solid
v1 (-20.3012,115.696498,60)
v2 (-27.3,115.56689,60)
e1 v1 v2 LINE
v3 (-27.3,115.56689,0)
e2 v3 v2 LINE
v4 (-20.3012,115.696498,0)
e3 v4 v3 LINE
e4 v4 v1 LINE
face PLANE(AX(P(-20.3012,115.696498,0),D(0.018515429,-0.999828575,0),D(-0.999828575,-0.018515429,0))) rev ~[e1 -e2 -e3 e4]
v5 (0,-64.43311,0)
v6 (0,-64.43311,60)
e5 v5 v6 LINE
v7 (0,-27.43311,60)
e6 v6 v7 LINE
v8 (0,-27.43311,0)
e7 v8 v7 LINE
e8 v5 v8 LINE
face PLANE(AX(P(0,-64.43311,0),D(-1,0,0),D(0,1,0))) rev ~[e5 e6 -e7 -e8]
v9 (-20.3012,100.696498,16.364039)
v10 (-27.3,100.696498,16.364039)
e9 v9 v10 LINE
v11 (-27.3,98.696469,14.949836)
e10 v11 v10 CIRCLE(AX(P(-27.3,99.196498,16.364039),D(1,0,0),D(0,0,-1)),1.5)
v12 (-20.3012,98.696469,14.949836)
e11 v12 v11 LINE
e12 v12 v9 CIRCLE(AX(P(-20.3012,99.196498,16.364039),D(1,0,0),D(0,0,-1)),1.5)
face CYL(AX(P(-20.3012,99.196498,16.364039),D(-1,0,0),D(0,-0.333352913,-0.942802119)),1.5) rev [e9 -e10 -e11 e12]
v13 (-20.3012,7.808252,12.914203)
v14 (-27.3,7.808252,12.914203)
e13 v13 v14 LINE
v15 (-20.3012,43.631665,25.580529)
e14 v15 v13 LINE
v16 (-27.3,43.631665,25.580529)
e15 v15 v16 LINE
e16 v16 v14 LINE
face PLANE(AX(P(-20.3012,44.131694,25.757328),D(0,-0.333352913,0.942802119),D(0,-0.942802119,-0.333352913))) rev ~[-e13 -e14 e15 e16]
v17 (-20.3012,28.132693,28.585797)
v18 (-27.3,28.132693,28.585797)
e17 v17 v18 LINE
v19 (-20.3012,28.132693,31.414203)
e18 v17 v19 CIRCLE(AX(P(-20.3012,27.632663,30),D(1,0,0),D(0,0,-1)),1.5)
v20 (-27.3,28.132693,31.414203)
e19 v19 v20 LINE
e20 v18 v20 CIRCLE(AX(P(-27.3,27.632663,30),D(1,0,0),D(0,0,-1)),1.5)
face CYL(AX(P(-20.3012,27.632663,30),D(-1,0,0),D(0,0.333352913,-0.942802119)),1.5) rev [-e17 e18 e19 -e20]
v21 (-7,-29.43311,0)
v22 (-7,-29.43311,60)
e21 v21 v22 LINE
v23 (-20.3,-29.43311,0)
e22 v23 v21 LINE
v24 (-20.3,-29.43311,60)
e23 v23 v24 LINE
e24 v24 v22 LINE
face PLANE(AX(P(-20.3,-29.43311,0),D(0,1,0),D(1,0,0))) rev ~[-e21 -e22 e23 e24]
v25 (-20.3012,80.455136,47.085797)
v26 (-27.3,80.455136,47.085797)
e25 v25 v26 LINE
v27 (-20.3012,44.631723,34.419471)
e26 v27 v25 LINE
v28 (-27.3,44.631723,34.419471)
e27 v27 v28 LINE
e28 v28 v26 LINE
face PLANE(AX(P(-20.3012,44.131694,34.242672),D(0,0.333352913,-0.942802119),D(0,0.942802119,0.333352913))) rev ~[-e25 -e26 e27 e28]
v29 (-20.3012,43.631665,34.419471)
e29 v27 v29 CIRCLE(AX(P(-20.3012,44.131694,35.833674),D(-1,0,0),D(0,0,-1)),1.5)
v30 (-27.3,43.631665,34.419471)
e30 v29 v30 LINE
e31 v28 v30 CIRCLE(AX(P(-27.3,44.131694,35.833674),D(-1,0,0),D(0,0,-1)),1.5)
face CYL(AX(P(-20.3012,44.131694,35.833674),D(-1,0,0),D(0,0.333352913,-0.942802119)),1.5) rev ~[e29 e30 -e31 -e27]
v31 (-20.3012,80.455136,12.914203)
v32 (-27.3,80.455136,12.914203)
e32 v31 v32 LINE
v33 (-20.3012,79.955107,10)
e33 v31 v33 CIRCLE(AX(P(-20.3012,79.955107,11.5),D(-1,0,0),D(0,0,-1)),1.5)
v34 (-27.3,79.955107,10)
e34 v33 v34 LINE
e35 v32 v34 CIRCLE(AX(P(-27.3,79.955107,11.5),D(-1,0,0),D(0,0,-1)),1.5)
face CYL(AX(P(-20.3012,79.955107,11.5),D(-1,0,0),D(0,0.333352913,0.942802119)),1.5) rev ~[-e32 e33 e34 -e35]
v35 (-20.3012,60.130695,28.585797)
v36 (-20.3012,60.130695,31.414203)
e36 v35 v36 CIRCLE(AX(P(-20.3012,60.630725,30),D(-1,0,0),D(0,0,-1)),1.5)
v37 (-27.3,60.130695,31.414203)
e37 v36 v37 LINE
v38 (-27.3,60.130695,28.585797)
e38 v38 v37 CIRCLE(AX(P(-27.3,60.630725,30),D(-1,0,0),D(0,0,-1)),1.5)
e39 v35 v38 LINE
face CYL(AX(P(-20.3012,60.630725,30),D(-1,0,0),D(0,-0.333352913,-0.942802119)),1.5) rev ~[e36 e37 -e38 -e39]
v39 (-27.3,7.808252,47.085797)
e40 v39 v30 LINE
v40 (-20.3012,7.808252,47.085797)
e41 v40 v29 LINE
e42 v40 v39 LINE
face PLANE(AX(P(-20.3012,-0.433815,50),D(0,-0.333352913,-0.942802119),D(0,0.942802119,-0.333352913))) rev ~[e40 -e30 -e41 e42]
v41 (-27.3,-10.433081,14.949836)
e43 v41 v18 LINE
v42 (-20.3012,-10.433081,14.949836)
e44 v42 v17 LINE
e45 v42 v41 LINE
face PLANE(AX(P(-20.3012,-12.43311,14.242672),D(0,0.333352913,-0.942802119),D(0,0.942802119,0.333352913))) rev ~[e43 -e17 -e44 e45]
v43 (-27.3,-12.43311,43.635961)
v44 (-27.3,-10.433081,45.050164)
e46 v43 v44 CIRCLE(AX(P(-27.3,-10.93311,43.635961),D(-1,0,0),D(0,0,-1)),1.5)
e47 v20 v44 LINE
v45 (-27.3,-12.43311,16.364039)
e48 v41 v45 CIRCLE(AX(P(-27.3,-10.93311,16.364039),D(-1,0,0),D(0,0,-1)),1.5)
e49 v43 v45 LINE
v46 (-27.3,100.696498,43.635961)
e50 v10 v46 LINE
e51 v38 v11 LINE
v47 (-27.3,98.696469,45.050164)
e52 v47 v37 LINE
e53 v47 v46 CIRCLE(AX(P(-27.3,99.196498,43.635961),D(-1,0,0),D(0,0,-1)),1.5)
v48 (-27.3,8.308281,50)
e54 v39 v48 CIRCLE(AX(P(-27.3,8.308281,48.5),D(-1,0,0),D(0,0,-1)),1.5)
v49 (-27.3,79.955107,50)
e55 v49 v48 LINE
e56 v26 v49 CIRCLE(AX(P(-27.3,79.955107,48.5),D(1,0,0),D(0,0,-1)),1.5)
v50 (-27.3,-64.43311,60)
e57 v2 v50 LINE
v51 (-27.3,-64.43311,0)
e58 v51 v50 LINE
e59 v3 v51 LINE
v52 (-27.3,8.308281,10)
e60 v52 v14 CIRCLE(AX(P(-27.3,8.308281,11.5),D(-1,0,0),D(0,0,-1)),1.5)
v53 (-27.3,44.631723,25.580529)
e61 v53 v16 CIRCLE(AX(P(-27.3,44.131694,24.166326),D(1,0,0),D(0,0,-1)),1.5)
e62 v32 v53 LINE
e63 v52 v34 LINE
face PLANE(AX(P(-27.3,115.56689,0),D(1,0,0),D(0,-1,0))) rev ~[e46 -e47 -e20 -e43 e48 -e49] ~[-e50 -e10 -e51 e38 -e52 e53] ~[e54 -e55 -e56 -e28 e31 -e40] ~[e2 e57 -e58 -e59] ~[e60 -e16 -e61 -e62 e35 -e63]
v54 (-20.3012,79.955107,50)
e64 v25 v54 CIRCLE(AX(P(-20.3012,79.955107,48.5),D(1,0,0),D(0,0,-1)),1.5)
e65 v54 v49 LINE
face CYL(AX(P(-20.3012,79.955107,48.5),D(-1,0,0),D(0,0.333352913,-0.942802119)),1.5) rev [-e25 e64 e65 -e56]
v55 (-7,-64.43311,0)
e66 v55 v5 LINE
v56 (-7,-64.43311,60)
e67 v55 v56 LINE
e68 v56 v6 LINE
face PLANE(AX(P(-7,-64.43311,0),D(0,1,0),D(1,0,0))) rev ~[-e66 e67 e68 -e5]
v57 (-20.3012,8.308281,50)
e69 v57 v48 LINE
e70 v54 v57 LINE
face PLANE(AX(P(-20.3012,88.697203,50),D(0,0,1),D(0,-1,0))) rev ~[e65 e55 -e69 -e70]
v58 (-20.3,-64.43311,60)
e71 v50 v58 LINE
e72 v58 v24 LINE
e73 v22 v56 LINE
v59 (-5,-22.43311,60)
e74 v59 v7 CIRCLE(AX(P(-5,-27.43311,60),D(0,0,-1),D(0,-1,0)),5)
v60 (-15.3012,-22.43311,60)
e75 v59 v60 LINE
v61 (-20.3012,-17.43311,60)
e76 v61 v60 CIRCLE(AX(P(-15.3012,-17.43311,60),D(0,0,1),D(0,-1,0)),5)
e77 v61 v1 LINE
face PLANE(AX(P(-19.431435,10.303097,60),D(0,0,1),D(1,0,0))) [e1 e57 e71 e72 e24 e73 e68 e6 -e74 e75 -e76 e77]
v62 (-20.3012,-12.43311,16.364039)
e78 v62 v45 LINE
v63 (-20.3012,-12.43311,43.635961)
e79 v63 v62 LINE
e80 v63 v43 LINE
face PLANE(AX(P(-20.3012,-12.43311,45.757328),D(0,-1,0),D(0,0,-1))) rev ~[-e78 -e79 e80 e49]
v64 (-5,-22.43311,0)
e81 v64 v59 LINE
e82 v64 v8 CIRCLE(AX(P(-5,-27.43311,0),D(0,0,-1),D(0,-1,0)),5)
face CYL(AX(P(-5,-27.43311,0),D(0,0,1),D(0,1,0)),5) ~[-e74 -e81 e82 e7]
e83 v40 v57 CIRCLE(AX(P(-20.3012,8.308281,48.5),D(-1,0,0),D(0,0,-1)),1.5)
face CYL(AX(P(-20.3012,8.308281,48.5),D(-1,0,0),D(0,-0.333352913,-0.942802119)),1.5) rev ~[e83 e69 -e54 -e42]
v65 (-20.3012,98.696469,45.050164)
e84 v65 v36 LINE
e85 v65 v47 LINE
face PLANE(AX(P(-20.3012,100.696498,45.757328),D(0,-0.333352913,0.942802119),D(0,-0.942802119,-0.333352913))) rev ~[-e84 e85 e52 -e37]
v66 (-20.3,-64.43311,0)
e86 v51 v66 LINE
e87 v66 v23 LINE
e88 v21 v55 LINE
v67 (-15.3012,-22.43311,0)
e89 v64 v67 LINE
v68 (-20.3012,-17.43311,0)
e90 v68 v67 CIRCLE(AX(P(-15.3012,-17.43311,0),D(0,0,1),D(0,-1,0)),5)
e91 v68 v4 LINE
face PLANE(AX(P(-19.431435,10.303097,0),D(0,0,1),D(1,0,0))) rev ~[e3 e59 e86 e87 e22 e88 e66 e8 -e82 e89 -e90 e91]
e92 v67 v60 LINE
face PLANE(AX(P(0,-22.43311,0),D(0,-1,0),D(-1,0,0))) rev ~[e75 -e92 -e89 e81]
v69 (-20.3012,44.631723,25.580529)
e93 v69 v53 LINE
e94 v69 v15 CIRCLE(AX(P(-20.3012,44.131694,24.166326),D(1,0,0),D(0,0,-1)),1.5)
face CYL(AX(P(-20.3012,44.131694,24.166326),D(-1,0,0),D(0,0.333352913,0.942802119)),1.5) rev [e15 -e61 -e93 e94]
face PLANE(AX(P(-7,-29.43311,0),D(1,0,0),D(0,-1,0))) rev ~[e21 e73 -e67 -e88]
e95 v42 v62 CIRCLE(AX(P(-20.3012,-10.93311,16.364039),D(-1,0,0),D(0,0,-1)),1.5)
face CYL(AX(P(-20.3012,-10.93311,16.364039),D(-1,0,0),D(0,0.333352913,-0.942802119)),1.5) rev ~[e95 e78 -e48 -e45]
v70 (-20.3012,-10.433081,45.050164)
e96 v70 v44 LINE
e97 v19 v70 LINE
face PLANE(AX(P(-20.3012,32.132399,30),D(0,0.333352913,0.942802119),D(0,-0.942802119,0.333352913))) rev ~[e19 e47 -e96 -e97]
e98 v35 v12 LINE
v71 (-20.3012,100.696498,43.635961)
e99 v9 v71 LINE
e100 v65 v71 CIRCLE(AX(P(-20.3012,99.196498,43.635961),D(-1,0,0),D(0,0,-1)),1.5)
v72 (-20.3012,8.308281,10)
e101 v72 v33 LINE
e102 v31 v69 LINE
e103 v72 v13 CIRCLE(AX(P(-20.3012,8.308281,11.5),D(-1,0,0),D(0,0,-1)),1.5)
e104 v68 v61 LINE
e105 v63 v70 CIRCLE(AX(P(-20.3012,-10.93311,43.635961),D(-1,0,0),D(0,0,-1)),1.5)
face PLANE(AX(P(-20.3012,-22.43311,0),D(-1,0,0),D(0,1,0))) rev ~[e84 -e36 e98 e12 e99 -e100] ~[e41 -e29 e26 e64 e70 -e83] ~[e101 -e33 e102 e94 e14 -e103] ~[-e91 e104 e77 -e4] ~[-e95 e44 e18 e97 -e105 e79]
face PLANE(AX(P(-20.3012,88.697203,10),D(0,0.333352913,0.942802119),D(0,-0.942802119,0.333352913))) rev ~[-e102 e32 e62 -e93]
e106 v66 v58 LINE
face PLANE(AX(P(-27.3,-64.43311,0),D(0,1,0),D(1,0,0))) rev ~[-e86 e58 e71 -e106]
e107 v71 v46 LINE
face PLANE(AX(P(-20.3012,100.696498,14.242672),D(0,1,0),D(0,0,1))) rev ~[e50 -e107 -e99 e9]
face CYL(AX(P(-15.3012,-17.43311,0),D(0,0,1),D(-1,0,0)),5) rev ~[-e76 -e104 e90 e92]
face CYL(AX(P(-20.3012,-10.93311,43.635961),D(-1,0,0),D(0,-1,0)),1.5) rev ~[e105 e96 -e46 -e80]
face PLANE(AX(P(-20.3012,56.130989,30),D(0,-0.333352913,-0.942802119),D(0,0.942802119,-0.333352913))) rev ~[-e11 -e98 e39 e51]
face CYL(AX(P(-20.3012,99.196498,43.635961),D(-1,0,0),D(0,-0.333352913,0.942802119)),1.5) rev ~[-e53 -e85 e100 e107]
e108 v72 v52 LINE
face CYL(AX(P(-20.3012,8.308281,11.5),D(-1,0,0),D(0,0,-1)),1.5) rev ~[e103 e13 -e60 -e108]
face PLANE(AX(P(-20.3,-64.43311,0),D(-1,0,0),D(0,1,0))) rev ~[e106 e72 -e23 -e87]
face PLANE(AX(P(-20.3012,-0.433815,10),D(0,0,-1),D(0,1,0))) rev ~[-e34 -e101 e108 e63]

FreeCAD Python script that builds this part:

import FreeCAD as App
import Part
import Sketcher

V = App.Vector


def edges_at(feature, points):
    """Names of the edges that pass closest to the given points."""
    edges = feature.Shape.Edges
    near = lambda p: min(range(len(edges)), key=lambda i: edges[i].distToShape(Part.Vertex(*p))[0])
    return sorted({f"Edge{near(p) + 1}" for p in points})

doc = App.newDocument("Part")
body = doc.addObject("PartDesign::Body", "Body")

# Sketch on XY plane
sketch1 = body.newObject("Sketcher::SketchObject", "Sketch")
sketch1.AttachmentSupport = (doc.getObject("XY_Plane"), [""])
sketch1.MapMode = "FlatFace"
sketch1.addGeometry(Part.LineSegment(V(-20.3012, 115.696498, 0), V(-27.3, 115.56689, 0)), False)
sketch1.addGeometry(Part.LineSegment(V(-27.3, 115.56689, 0), V(-27.3, -64.43311, 0)), False)
sketch1.addGeometry(Part.LineSegment(V(-27.3, -64.43311, 0), V(-20.3, -64.43311, 0)), False)
sketch1.addGeometry(Part.LineSegment(V(-20.3, -64.43311, 0), V(-20.3, -29.43311, 0)), False)
sketch1.addGeometry(Part.LineSegment(V(-20.3, -29.43311, 0), V(-7, -29.43311, 0)), False)
sketch1.addGeometry(Part.LineSegment(V(-7, -29.43311, 0), V(-7, -64.43311, 0)), False)
sketch1.addGeometry(Part.LineSegment(V(-7, -64.43311, 0), V(0, -64.43311, 0)), False)
sketch1.addGeometry(Part.LineSegment(V(0, -64.43311, 0), V(0, -22.43311, 0)), False)
sketch1.addGeometry(Part.LineSegment(V(0, -22.43311, 0), V(-20.3012, -22.43311, 0)), False)
sketch1.addGeometry(Part.LineSegment(V(-20.3012, -22.43311, 0), V(-20.3012, 115.696498, 0)), False)
sketch1.addConstraint(Sketcher.Constraint("Coincident", 0, 2, 1, 1))
sketch1.addConstraint(Sketcher.Constraint("Coincident", 1, 2, 2, 1))
sketch1.addConstraint(Sketcher.Constraint("Coincident", 2, 2, 3, 1))
sketch1.addConstraint(Sketcher.Constraint("Coincident", 3, 2, 4, 1))
sketch1.addConstraint(Sketcher.Constraint("Coincident", 4, 2, 5, 1))
sketch1.addConstraint(Sketcher.Constraint("Coincident", 5, 2, 6, 1))
sketch1.addConstraint(Sketcher.Constraint("Coincident", 6, 2, 7, 1))
sketch1.addConstraint(Sketcher.Constraint("Coincident", 7, 2, 8, 1))
sketch1.addConstraint(Sketcher.Constraint("Coincident", 8, 2, 9, 1))
sketch1.addConstraint(Sketcher.Constraint("Coincident", 9, 2, 0, 1))
sketch1.addConstraint(Sketcher.Constraint("Vertical", 1))
sketch1.addConstraint(Sketcher.Constraint("Horizontal", 2))
sketch1.addConstraint(Sketcher.Constraint("Vertical", 3))
sketch1.addConstraint(Sketcher.Constraint("Horizontal", 4))
sketch1.addConstraint(Sketcher.Constraint("Vertical", 5))
sketch1.addConstraint(Sketcher.Constraint("Horizontal", 6))
sketch1.addConstraint(Sketcher.Constraint("Vertical", 7))
sketch1.addConstraint(Sketcher.Constraint("Horizontal", 8))
sketch1.addConstraint(Sketcher.Constraint("Vertical", 9))
sketch1.addConstraint(Sketcher.Constraint("PointOnObject", 6, 2, -2))
sketch1.addConstraint(Sketcher.Constraint("Horizontal", 2, 2, 5, 2))
sketch1.addConstraint(Sketcher.Constraint("Equal", 2, 6))
sketch1.addConstraint(Sketcher.Constraint("DistanceX", 2, 1, 2, 2, 7.0))
sketch1.addConstraint(Sketcher.Constraint("DistanceY", 1, 2, 1, 1, 180.0))
sketch1.addConstraint(Sketcher.Constraint("DistanceY", 3, 1, 3, 2, 35.0))
sketch1.addConstraint(Sketcher.Constraint("DistanceY", 7, 1, 7, 2, 42.0))
sketch1.addConstraint(Sketcher.Constraint("Distance", 0, 7.0))
sketch1.addConstraint(Sketcher.Constraint("DistanceX", 4, 1, 4, 2, 13.3))
sketch1.addConstraint(Sketcher.Constraint("DistanceX", 8, 2, 8, 1, 20.3012))
sketch1.addConstraint(Sketcher.Constraint("DistanceY", -1, 1, 9, 2, 115.696498))
pad1 = body.newObject("PartDesign::Pad", "Pad")
pad1.Profile = sketch1
pad1.Length = 60

# Sketch on YZ plane
sketch2 = body.newObject("Sketcher::SketchObject", "Sketch001")
sketch2.AttachmentSupport = (doc.getObject("YZ_Plane"), [""])
sketch2.MapMode = "FlatFace"
sketch2.AttachmentOffset = App.Placement(V(0, 0, -20.3012), App.Rotation())
sketch2.addGeometry(Part.LineSegment(V(32, 30, 0), V(-12, 46, 0)), False)
sketch2.addGeometry(Part.LineSegment(V(-12, 46, 0), V(-12, 14, 0)), False)
sketch2.addGeometry(Part.LineSegment(V(-12, 14, 0), V(32, 30, 0)), False)
sketch2.addGeometry(Part.LineSegment(V(89, 50, 0), V(0, 50, 0)), False)
sketch2.addGeometry(Part.LineSegment(V(0, 50, 0), V(44, 34, 0)), False)
sketch2.addGeometry(Part.LineSegment(V(44, 34, 0), V(89, 50, 0)), False)
sketch2.addGeometry(Part.LineSegment(V(101, 14, 0), V(101, 46, 0)), False)
sketch2.addGeometry(Part.LineSegment(V(101, 46, 0), V(56, 30, 0)), False)
sketch2.addGeometry(Part.LineSegment(V(56, 30, 0), V(101, 14, 0)), False)
sketch2.addGeometry(Part.LineSegment(V(44, 26, 0), V(0, 10, 0)), False)
sketch2.addGeometry(Part.LineSegment(V(0, 10, 0), V(89, 10, 0)), False)
sketch2.addGeometry(Part.LineSegment(V(89, 10, 0), V(44, 26, 0)), False)
sketch2.addConstraint(Sketcher.Constraint("Coincident", 0, 2, 1, 1))
sketch2.addConstraint(Sketcher.Constraint("Coincident", 1, 2, 2, 1))
sketch2.addConstraint(Sketcher.Constraint("Coincident", 2, 2, 0, 1))
sketch2.addConstraint(Sketcher.Constraint("Coincident", 3, 2, 4, 1))
sketch2.addConstraint(Sketcher.Constraint("Coincident", 4, 2, 5, 1))
sketch2.addConstraint(Sketcher.Constraint("Coincident", 5, 2, 3, 1))
sketch2.addConstraint(Sketcher.Constraint("Coincident", 6, 2, 7, 1))
sketch2.addConstraint(Sketcher.Constraint("Coincident", 7, 2, 8, 1))
sketch2.addConstraint(Sketcher.Constraint("Coincident", 8, 2, 6, 1))
sketch2.addConstraint(Sketcher.Constraint("Coincident", 9, 2, 10, 1))
sketch2.addConstraint(Sketcher.Constraint("Coincident", 10, 2, 11, 1))
sketch2.addConstraint(Sketcher.Constraint("Coincident", 11, 2, 9, 1))
sketch2.addConstraint(Sketcher.Constraint("Vertical", 1))
sketch2.addConstraint(Sketcher.Constraint("Horizontal", 3))
sketch2.addConstraint(Sketcher.Constraint("Vertical", 6))
sketch2.addConstraint(Sketcher.Constraint("Horizontal", 10))
sketch2.addConstraint(Sketcher.Constraint("Parallel", 0, 4))
sketch2.addConstraint(Sketcher.Constraint("Parallel", 2, 5))
sketch2.addConstraint(Sketcher.Constraint("Parallel", 5, 7))
sketch2.addConstraint(Sketcher.Constraint("Parallel", 4, 8))
sketch2.addConstraint(Sketcher.Constraint("Parallel", 7, 9))
sketch2.addConstraint(Sketcher.Constraint("Parallel", 8, 11))
sketch2.addConstraint(Sketcher.Constraint("Horizontal", 0, 2, 6, 2))
sketch2.addConstraint(Sketcher.Constraint("Horizontal", 2, 2, 7, 2))
sketch2.addConstraint(Sketcher.Constraint("Horizontal", 1, 2, 8, 2))
sketch2.addConstraint(Sketcher.Constraint("Vertical", 3, 2, 9, 2))
sketch2.addConstraint(Sketcher.Constraint("Vertical", 5, 2, 10, 2))
sketch2.addConstraint(Sketcher.Constraint("Equal", 2, 4))
sketch2.addConstraint(Sketcher.Constraint("DistanceY", -1, 1, 2, 2, 30.0))
sketch2.addConstraint(Sketcher.Constraint("DistanceY", -1, 1, 3, 2, 50.0))
sketch2.addConstraint(Sketcher.Constraint("DistanceY", -1, 1, 9, 2, 10.0))
sketch2.addConstraint(Sketcher.Constraint("DistanceX", -1, 1, 2, 2, 32.132399))
sketch2.addConstraint(Sketcher.Constraint("DistanceX", -1, 1, 6, 2, 100.696498))
sketch2.addConstraint(Sketcher.Constraint("DistanceX", 3, 2, 3, 1, 89.131018))
sketch2.addConstraint(Sketcher.Constraint("DistanceY", 1, 2, 1, 1, 31.514656))
sketch2.addConstraint(Sketcher.Constraint("DistanceX", 3, 2, -1, 1, 0.433815))
pocket1 = body.newObject("PartDesign::Pocket", "Pocket")
pocket1.Profile = sketch2
pocket1.Length = 25
doc.recompute()

fillet = body.newObject("PartDesign::Fillet", "Fillet")
fillet.Base = (pocket1, edges_at(pocket1, [(0, -22.433, 30), (-20.301, -22.433, 30)]))
fillet.Radius = 5
doc.recompute()

fillet2 = body.newObject("PartDesign::Fillet", "Fillet001")
fillet2.Base = (fillet, edges_at(fillet, [
    (-23.801, -12.433, 14.243),
    (-23.801, -12.433, 45.757),
    (-23.801, -0.434, 10),
    (-23.801, -0.434, 50),
    (-23.801, 32.132, 30),
    (-23.801, 44.132, 34.243),
    (-23.801, 44.132, 25.757),
    (-23.801, 56.131, 30),
    (-23.801, 88.697, 50),
    (-23.801, 100.696, 45.757),
    (-23.801, 100.696, 14.243),
    (-23.801, 88.697, 10),
]))
fillet2.Radius = 1.5

doc.recompute()
